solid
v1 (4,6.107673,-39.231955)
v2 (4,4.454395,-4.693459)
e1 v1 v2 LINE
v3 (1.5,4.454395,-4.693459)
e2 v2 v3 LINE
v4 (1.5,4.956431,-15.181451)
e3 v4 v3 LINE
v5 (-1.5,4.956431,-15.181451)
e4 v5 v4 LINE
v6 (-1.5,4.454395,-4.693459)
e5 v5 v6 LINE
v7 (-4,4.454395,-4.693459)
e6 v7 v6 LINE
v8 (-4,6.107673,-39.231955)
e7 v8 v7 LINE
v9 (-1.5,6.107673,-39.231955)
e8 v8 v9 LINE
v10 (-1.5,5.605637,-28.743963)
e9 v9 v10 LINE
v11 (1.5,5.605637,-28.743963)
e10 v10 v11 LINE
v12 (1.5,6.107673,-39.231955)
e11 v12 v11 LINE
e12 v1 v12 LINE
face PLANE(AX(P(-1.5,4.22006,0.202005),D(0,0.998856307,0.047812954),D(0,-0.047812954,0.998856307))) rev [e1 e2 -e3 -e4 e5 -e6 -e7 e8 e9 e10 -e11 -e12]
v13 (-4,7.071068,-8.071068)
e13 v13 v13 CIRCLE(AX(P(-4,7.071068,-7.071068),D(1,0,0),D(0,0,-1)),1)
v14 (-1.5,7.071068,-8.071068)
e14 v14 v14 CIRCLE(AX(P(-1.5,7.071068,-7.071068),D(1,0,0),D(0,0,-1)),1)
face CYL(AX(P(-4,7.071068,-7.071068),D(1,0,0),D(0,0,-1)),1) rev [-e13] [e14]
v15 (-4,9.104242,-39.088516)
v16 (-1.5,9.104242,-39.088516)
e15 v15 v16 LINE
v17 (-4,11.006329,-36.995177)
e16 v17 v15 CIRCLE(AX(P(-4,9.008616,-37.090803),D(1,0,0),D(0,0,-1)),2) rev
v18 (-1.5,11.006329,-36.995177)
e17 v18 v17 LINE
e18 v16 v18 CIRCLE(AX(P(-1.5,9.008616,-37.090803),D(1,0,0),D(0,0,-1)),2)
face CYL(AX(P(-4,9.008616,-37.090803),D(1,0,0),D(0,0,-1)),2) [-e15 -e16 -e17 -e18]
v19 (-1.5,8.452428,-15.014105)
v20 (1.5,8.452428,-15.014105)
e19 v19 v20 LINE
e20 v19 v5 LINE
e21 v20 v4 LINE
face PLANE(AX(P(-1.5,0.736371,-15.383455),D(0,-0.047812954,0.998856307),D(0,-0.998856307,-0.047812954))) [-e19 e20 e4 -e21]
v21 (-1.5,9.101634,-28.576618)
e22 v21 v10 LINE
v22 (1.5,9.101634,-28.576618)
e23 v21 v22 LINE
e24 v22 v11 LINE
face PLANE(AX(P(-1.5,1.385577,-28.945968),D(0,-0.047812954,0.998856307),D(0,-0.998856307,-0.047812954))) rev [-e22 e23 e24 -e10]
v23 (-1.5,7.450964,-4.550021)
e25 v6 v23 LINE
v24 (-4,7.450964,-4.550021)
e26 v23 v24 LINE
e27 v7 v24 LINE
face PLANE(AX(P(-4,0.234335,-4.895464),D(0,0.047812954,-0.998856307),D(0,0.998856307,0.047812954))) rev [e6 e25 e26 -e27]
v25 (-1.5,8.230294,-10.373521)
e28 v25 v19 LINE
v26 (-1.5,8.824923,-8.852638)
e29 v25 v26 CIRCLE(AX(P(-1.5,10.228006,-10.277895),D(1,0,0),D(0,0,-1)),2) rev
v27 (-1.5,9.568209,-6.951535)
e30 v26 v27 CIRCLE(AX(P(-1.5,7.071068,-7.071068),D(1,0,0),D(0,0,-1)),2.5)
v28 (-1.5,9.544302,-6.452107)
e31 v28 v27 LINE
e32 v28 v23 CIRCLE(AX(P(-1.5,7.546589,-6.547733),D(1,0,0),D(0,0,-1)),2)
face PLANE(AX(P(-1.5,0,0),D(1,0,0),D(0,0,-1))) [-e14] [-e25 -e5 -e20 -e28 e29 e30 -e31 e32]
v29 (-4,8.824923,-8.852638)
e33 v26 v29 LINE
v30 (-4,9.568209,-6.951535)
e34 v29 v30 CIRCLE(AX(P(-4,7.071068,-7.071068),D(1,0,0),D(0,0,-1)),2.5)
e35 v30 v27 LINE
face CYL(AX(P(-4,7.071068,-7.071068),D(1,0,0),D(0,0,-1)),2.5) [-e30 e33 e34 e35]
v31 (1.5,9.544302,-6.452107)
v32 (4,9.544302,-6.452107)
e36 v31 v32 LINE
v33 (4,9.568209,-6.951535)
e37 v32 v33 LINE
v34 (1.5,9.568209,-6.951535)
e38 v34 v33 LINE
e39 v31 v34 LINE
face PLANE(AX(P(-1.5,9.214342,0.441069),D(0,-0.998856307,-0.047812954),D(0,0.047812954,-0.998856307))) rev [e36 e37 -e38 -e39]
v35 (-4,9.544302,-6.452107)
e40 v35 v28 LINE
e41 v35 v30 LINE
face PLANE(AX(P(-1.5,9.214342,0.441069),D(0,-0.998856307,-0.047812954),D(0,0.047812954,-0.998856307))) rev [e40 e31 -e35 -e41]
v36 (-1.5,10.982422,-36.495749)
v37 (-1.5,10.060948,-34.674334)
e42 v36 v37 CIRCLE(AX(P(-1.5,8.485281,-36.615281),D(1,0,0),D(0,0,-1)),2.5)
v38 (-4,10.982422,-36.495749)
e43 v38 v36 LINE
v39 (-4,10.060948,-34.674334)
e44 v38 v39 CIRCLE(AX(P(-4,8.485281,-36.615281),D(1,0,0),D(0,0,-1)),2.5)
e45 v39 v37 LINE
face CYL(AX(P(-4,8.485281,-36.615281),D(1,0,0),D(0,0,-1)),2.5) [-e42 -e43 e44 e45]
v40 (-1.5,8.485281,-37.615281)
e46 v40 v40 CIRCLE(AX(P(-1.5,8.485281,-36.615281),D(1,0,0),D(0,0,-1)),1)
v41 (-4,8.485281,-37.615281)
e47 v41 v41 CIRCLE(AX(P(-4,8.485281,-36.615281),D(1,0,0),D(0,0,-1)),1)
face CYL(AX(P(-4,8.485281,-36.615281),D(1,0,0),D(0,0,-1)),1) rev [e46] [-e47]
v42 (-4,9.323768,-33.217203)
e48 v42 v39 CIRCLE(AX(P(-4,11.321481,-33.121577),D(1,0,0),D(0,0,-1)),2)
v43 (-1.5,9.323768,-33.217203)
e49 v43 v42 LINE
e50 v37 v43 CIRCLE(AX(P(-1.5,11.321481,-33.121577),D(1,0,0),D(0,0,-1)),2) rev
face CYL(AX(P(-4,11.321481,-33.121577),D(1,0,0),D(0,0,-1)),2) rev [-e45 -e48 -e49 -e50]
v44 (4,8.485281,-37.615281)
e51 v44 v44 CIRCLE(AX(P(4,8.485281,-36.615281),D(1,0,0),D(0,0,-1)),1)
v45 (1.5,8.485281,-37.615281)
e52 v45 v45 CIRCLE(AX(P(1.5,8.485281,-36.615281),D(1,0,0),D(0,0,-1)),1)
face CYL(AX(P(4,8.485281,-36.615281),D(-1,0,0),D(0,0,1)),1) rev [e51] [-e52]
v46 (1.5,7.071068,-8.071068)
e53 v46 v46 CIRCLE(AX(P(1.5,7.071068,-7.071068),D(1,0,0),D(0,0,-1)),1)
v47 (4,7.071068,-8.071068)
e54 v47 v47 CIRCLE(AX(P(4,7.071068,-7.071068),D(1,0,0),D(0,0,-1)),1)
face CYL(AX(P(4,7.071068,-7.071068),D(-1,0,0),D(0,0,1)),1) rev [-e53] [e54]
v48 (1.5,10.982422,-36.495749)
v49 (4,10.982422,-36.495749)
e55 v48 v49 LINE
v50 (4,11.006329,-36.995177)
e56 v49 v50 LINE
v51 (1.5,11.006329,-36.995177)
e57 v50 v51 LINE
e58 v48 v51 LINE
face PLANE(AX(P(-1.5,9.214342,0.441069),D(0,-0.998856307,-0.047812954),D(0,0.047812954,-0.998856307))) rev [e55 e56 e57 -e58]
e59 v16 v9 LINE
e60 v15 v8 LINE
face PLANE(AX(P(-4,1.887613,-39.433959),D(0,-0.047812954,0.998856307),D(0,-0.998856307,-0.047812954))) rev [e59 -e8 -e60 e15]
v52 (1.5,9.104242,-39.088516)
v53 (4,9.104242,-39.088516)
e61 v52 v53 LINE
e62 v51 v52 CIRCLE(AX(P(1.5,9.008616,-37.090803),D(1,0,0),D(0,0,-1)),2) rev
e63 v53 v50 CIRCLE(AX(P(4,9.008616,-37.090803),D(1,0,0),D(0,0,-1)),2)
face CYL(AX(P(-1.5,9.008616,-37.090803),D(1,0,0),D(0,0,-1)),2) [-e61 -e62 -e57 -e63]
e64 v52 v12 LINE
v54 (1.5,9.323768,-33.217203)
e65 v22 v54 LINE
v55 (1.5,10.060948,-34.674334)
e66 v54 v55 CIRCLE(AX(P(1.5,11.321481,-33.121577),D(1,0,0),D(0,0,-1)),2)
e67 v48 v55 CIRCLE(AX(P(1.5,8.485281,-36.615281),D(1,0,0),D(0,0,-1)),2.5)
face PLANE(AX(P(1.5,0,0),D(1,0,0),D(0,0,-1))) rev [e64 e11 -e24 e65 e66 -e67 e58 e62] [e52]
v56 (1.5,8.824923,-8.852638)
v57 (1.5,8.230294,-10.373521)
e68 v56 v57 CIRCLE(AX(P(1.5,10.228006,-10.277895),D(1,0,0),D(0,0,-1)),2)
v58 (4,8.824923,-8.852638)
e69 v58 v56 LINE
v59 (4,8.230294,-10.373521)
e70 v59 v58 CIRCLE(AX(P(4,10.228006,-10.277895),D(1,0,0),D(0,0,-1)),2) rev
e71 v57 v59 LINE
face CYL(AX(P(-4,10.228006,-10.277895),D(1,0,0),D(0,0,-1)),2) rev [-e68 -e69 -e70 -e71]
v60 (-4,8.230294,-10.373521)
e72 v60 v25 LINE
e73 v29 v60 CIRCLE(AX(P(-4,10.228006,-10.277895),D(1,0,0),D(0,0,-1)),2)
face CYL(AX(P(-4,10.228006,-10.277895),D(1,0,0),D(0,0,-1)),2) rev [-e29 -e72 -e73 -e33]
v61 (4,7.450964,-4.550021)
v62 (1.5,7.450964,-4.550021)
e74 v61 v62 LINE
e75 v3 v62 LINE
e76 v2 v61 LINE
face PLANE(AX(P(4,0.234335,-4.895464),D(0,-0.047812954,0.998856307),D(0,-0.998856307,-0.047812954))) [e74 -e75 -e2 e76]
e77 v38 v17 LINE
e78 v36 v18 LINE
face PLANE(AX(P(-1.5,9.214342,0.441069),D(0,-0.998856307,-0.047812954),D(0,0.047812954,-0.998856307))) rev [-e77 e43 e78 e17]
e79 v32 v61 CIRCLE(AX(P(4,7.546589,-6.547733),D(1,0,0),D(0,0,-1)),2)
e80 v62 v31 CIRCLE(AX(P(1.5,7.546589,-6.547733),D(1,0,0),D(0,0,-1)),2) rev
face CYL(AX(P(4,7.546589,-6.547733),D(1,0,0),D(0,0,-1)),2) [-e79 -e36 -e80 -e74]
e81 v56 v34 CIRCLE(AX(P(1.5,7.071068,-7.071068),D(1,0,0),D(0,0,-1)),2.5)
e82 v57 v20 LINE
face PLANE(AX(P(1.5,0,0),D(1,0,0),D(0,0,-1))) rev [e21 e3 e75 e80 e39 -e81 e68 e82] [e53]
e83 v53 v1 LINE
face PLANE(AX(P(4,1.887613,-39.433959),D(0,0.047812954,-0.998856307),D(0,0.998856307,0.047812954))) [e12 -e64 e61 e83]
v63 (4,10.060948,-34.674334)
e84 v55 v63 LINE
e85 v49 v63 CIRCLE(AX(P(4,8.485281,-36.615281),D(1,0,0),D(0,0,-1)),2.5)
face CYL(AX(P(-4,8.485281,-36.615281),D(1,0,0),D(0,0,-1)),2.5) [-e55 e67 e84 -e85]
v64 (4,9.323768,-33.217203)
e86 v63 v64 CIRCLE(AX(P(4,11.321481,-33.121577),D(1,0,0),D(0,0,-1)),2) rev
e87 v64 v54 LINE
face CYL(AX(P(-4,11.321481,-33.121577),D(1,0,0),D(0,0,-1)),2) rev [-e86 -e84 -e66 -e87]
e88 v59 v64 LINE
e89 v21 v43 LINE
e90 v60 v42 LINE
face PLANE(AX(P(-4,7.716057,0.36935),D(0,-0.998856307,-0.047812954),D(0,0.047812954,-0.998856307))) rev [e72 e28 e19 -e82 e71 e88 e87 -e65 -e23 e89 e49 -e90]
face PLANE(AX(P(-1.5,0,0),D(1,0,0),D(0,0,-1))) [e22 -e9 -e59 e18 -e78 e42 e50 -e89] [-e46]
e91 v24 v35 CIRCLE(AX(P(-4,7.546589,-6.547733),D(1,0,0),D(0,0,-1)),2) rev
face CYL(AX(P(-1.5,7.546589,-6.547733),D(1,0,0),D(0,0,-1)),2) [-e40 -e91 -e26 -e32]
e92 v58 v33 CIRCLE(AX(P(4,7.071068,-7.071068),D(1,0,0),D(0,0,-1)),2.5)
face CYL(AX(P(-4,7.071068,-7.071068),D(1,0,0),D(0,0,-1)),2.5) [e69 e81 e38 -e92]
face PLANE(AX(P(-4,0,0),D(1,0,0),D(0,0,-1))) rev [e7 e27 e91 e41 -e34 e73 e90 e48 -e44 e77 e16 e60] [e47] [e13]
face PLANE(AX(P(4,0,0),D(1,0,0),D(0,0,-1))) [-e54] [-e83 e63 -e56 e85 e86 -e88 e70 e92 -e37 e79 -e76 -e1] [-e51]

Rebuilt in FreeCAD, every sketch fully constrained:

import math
import FreeCAD as App
import Part
import Sketcher

V = App.Vector
Q = App.Units.Quantity


def edges_at(feature, points):
    """Names of the edges that pass closest to the given points."""
    edges = feature.Shape.Edges
    near = lambda p: min(range(len(edges)), key=lambda i: edges[i].distToShape(Part.Vertex(*p))[0])
    return sorted({f"Edge{near(p) + 1}" for p in points})

doc = App.newDocument("Part")
body = doc.addObject("PartDesign::Body", "Body")

# Sketch on YZ plane
sketch1 = body.newObject("Sketcher::SketchObject", "Sketch")
sketch1.AttachmentSupport = (doc.getObject("YZ_Plane"), [""])
sketch1.MapMode = "FlatFace"
sketch1.addGeometry(Part.LineSegment(V(10, -15, 0), V(5, -15, 0)), False)
sketch1.addGeometry(Part.LineSegment(V(5, -15, 0), V(6, -29, 0)), False)
sketch1.addGeometry(Part.LineSegment(V(6, -29, 0), V(11, -29, 0)), False)
sketch1.addGeometry(Part.LineSegment(V(11, -29, 0), V(10, -15, 0)), False)
sketch1.addConstraint(Sketcher.Constraint("Coincident", 0, 2, 1, 1))
sketch1.addConstraint(Sketcher.Constraint("Coincident", 1, 2, 2, 1))
sketch1.addConstraint(Sketcher.Constraint("Coincident", 2, 2, 3, 1))
sketch1.addConstraint(Sketcher.Constraint("Coincident", 3, 2, 0, 1))
sketch1.addConstraint(Sketcher.Constraint("Perpendicular", 0, 1))
sketch1.addConstraint(Sketcher.Constraint("Perpendicular", 1, 2))
sketch1.addConstraint(Sketcher.Constraint("Perpendicular", 2, 3))
sketch1.addConstraint(Sketcher.Constraint("Distance", 0, Q("5 mm")))
sketch1.addConstraint(Sketcher.Constraint("DistanceY", 2, 2, -1, 1, Q("28.504899 mm")))
sketch1.addConstraint(Sketcher.Constraint("Distance", 1, Q("13.578042 mm")))
sketch1.addConstraint(Sketcher.Constraint("DistanceX", -1, 1, 0, 2, Q("4.956431 mm")))
sketch1.addConstraint(Sketcher.Constraint("DistanceY", 0, 2, -1, 1, Q("15.181451 mm")))
pad1 = body.newObject("PartDesign::Pad", "Pad")
pad1.Profile = sketch1
pad1.Type = "TwoLengths"
pad1.Length = 1.5
pad1.Length2 = 1.5

# Sketch on YZ plane
sketch2 = body.newObject("Sketcher::SketchObject", "Sketch001")
sketch2.AttachmentSupport = (doc.getObject("YZ_Plane"), [""])
sketch2.MapMode = "FlatFace"
sketch2.AttachmentOffset = App.Placement(V(0, 0, 1.5), App.Rotation())
sketch2.addGeometry(Part.LineSegment(V(10, -14.9, 0), V(9.4, -4.5, 0)), False)
sketch2.addGeometry(Part.LineSegment(V(9.4, -4.5, 0), V(4.5, -4.7, 0)), False)
sketch2.addGeometry(Part.LineSegment(V(4.5, -4.7, 0), V(5, -15.2, 0)), False)
sketch2.addGeometry(Part.LineSegment(V(5, -15.2, 0), V(5.6, -28.7, 0)), False)
sketch2.addGeometry(Part.LineSegment(V(5.6, -28.7, 0), V(6.1, -39.2, 0)), False)
sketch2.addGeometry(Part.LineSegment(V(6.1, -39.2, 0), V(11.1, -39, 0)), False)
sketch2.addGeometry(Part.LineSegment(V(11.1, -39, 0), V(10.6, -28.5, 0)), False)
sketch2.addGeometry(Part.LineSegment(V(10.6, -28.5, 0), V(10, -14.9, 0)), False)
sketch2.addGeometry(Part.Circle(V(7.1, -7.1, 0), V(0, 0, 1), 1), False)
sketch2.addGeometry(Part.Circle(V(8.5, -36.6, 0), V(0, 0, 1), 1), False)
sketch2.addConstraint(Sketcher.Constraint("Coincident", 0, 2, 1, 1))
sketch2.addConstraint(Sketcher.Constraint("Coincident", 1, 2, 2, 1))
sketch2.addConstraint(Sketcher.Constraint("Coincident", 2, 2, 3, 1))
sketch2.addConstraint(Sketcher.Constraint("Coincident", 3, 2, 4, 1))
sketch2.addConstraint(Sketcher.Constraint("Coincident", 4, 2, 5, 1))
sketch2.addConstraint(Sketcher.Constraint("Coincident", 5, 2, 6, 1))
sketch2.addConstraint(Sketcher.Constraint("Coincident", 6, 2, 7, 1))
sketch2.addConstraint(Sketcher.Constraint("Coincident", 7, 2, 0, 1))
sketch2.addConstraint(Sketcher.Constraint("Equal", 8, 9))
sketch2.addConstraint(Sketcher.Constraint("Perpendicular", 0, 1))
sketch2.addConstraint(Sketcher.Constraint("Perpendicular", 1, 2))
sketch2.addConstraint(Sketcher.Constraint("Parallel", 2, 3))
sketch2.addConstraint(Sketcher.Constraint("Parallel", 3, 4))
sketch2.addConstraint(Sketcher.Constraint("Perpendicular", 4, 5))
sketch2.addConstraint(Sketcher.Constraint("Perpendicular", 5, 6))
sketch2.addConstraint(Sketcher.Constraint("Parallel", 6, 7))
sketch2.addConstraint(Sketcher.Constraint("Equal", 0, 2))
sketch2.addConstraint(Sketcher.Constraint("Equal", 2, 4))
sketch2.addConstraint(Sketcher.Constraint("Equal", 4, 6))
sketch2.addConstraint(Sketcher.Constraint("Diameter", 8, Q("2 mm")))
sketch2.addConstraint(Sketcher.Constraint("Distance", 1, Q("5 mm")))
sketch2.addConstraint(Sketcher.Constraint("Distance", 0, Q("10.5 mm")))
sketch2.addConstraint(Sketcher.Constraint("DistanceY", 6, 2, -1, 1, Q("28.504899 mm")))
sketch2.addConstraint(Sketcher.Constraint("Distance", 3, Q("13.578042 mm")))
sketch2.addConstraint(Sketcher.Constraint("DistanceX", -1, 1, 9, 3, Q("8.485281 mm")))
sketch2.addConstraint(Sketcher.Constraint("DistanceY", 9, 3, -1, 1, Q("36.615281 mm")))
sketch2.addConstraint(Sketcher.Constraint("DistanceY", 1, 2, -1, 1, Q("4.693459 mm")))
sketch2.addConstraint(Sketcher.Constraint("DistanceX", -1, 1, 2, 2, Q("4.956431 mm")))
sketch2.addConstraint(Sketcher.Constraint("DistanceX", 8, 3, 0, 2, Q("2.377608 mm")))
sketch2.addConstraint(Sketcher.Constraint("DistanceY", 8, 3, 1, 2, Q("2.377608 mm")))
pad2 = body.newObject("PartDesign::Pad", "Pad001")
pad2.Profile = sketch2
pad2.Length = 2.5

# Sketch on YZ plane
sketch3 = body.newObject("Sketcher::SketchObject", "Sketch002")
sketch3.AttachmentSupport = (doc.getObject("YZ_Plane"), [""])
sketch3.MapMode = "FlatFace"
sketch3.AttachmentOffset = App.Placement(V(0, 0, -4), App.Rotation())
sketch3.addGeometry(Part.LineSegment(V(10, -14.9, 0), V(9.4, -4.5, 0)), False)
sketch3.addGeometry(Part.LineSegment(V(9.4, -4.5, 0), V(4.5, -4.7, 0)), False)
sketch3.addGeometry(Part.LineSegment(V(4.5, -4.7, 0), V(5, -15.2, 0)), False)
sketch3.addGeometry(Part.LineSegment(V(5, -15.2, 0), V(5.6, -28.7, 0)), False)
sketch3.addGeometry(Part.LineSegment(V(5.6, -28.7, 0), V(6.1, -39.2, 0)), False)
sketch3.addGeometry(Part.LineSegment(V(6.1, -39.2, 0), V(11.1, -39, 0)), False)
sketch3.addGeometry(Part.LineSegment(V(11.1, -39, 0), V(10.6, -28.5, 0)), False)
sketch3.addGeometry(Part.LineSegment(V(10.6, -28.5, 0), V(10, -14.9, 0)), False)
sketch3.addGeometry(Part.Circle(V(7.1, -7.1, 0), V(0, 0, 1), 1), False)
sketch3.addGeometry(Part.Circle(V(8.5, -36.6, 0), V(0, 0, 1), 1), False)
sketch3.addConstraint(Sketcher.Constraint("Coincident", 0, 2, 1, 1))
sketch3.addConstraint(Sketcher.Constraint("Coincident", 1, 2, 2, 1))
sketch3.addConstraint(Sketcher.Constraint("Coincident", 2, 2, 3, 1))
sketch3.addConstraint(Sketcher.Constraint("Coincident", 3, 2, 4, 1))
sketch3.addConstraint(Sketcher.Constraint("Coincident", 4, 2, 5, 1))
sketch3.addConstraint(Sketcher.Constraint("Coincident", 5, 2, 6, 1))
sketch3.addConstraint(Sketcher.Constraint("Coincident", 6, 2, 7, 1))
sketch3.addConstraint(Sketcher.Constraint("Coincident", 7, 2, 0, 1))
sketch3.addConstraint(Sketcher.Constraint("Equal", 8, 9))
sketch3.addConstraint(Sketcher.Constraint("Perpendicular", 0, 1))
sketch3.addConstraint(Sketcher.Constraint("Perpendicular", 1, 2))
sketch3.addConstraint(Sketcher.Constraint("Parallel", 2, 3))
sketch3.addConstraint(Sketcher.Constraint("Parallel", 3, 4))
sketch3.addConstraint(Sketcher.Constraint("Perpendicular", 4, 5))
sketch3.addConstraint(Sketcher.Constraint("Perpendicular", 5, 6))
sketch3.addConstraint(Sketcher.Constraint("Parallel", 6, 7))
sketch3.addConstraint(Sketcher.Constraint("Equal", 0, 2))
sketch3.addConstraint(Sketcher.Constraint("Equal", 2, 4))
sketch3.addConstraint(Sketcher.Constraint("Equal", 4, 6))
sketch3.addConstraint(Sketcher.Constraint("Diameter", 8, Q("2 mm")))
sketch3.addConstraint(Sketcher.Constraint("Distance", 1, Q("5 mm")))
sketch3.addConstraint(Sketcher.Constraint("Distance", 0, Q("10.5 mm")))
sketch3.addConstraint(Sketcher.Constraint("DistanceY", 6, 2, -1, 1, Q("28.504899 mm")))
sketch3.addConstraint(Sketcher.Constraint("Distance", 3, Q("13.578042 mm")))
sketch3.addConstraint(Sketcher.Constraint("DistanceX", -1, 1, 9, 3, Q("8.485281 mm")))
sketch3.addConstraint(Sketcher.Constraint("DistanceY", 9, 3, -1, 1, Q("36.615281 mm")))
sketch3.addConstraint(Sketcher.Constraint("DistanceY", 1, 2, -1, 1, Q("4.693459 mm")))
sketch3.addConstraint(Sketcher.Constraint("DistanceX", -1, 1, 2, 2, Q("4.956431 mm")))
sketch3.addConstraint(Sketcher.Constraint("DistanceX", 8, 3, 0, 2, Q("2.377608 mm")))
sketch3.addConstraint(Sketcher.Constraint("DistanceY", 8, 3, 1, 2, Q("2.377608 mm")))
pad3 = body.newObject("PartDesign::Pad", "Pad002")
pad3.Profile = sketch3
pad3.Length = 2.5
doc.recompute()

fillet = body.newObject("PartDesign::Fillet", "Fillet")
fillet.Base = (pad3, edges_at(pad3, [
    (2.75, 11.102, -38.993),
    (2.75, 9.449, -4.454),
    (-2.75, 9.449, -4.454),
    (-2.75, 11.102, -38.993),
]))
fillet.Radius = 2

# Sketch on YZ plane
sketch4 = body.newObject("Sketcher::SketchObject", "Sketch003")
sketch4.AttachmentSupport = (doc.getObject("YZ_Plane"), [""])
sketch4.MapMode = "FlatFace"
sketch4.addGeometry(Part.ArcOfCircle(Part.Circle(V(7.1, -7.1, 0), V(0, 0, 1), 2.5), math.radians(-64), math.radians(3)), False)
sketch4.addGeometry(Part.LineSegment(V(8.2, -9.3, 0), V(9.4, -34.3, 0)), False)
sketch4.addGeometry(Part.ArcOfCircle(Part.Circle(V(8.5, -36.6, 0), V(0, 0, 1), 2.5), math.radians(3), math.radians(69)), False)
sketch4.addGeometry(Part.LineSegment(V(11, -36.5, 0), V(14, -36.4, 0)), False)
sketch4.addGeometry(Part.LineSegment(V(14, -36.4, 0), V(12.6, -6.8, 0)), False)
sketch4.addGeometry(Part.LineSegment(V(12.6, -6.8, 0), V(9.6, -7, 0)), False)
sketch4.addConstraint(Sketcher.Constraint("Coincident", 0, 1, 1, 1))
sketch4.addConstraint(Sketcher.Constraint("Coincident", 1, 2, 2, 2))
sketch4.addConstraint(Sketcher.Constraint("Coincident", 2, 1, 3, 1))
sketch4.addConstraint(Sketcher.Constraint("Coincident", 3, 2, 4, 1))
sketch4.addConstraint(Sketcher.Constraint("Coincident", 4, 2, 5, 1))
sketch4.addConstraint(Sketcher.Constraint("Coincident", 5, 2, 0, 2))
sketch4.addConstraint(Sketcher.Constraint("Equal", 0, 2))
sketch4.addConstraint(Sketcher.Constraint("Perpendicular", 1, 3))
sketch4.addConstraint(Sketcher.Constraint("Perpendicular", 3, 4))
sketch4.addConstraint(Sketcher.Constraint("Perpendicular", 4, 5))
sketch4.addConstraint(Sketcher.Constraint("Equal", 3, 5))
sketch4.addConstraint(Sketcher.Constraint("Radius", 0, Q("2.5 mm")))
sketch4.addConstraint(Sketcher.Constraint("DistanceY", 1, 2, -1, 1, Q("34.278801 mm")))
sketch4.addConstraint(Sketcher.Constraint("DistanceY", 0, 1, 4, 2, Q("2.505801 mm")))
sketch4.addConstraint(Sketcher.Constraint("Distance", 3, Q("3.04131 mm")))
sketch4.addConstraint(Sketcher.Constraint("Distance", 4, Q("29.578042 mm")))
sketch4.addConstraint(Sketcher.Constraint("DistanceX", -1, 1, 2, 3, Q("8.485281 mm")))
sketch4.addConstraint(Sketcher.Constraint("DistanceY", 2, 3, -1, 1, Q("36.615281 mm")))
sketch4.addConstraint(Sketcher.Constraint("DistanceY", 2, 1, -1, 1, Q("36.495749 mm")))
sketch4.addConstraint(Sketcher.Constraint("DistanceX", -1, 1, 4, 2, Q("12.60604 mm")))
pocket1 = body.newObject("PartDesign::Pocket", "Pocket")
pocket1.Profile = sketch4
pocket1.Type = "ThroughAll"
pocket1.Midplane = True
doc.recompute()

fillet2 = body.newObject("PartDesign::Fillet", "Fillet001")
fillet2.Base = (pocket1, edges_at(pocket1, [
    (2.75, 8.179, -9.312),
    (-2.75, 9.375, -34.279),
    (2.75, 9.375, -34.279),
    (-2.75, 8.179, -9.312),
]))
fillet2.Radius = 2

doc.recompute()
